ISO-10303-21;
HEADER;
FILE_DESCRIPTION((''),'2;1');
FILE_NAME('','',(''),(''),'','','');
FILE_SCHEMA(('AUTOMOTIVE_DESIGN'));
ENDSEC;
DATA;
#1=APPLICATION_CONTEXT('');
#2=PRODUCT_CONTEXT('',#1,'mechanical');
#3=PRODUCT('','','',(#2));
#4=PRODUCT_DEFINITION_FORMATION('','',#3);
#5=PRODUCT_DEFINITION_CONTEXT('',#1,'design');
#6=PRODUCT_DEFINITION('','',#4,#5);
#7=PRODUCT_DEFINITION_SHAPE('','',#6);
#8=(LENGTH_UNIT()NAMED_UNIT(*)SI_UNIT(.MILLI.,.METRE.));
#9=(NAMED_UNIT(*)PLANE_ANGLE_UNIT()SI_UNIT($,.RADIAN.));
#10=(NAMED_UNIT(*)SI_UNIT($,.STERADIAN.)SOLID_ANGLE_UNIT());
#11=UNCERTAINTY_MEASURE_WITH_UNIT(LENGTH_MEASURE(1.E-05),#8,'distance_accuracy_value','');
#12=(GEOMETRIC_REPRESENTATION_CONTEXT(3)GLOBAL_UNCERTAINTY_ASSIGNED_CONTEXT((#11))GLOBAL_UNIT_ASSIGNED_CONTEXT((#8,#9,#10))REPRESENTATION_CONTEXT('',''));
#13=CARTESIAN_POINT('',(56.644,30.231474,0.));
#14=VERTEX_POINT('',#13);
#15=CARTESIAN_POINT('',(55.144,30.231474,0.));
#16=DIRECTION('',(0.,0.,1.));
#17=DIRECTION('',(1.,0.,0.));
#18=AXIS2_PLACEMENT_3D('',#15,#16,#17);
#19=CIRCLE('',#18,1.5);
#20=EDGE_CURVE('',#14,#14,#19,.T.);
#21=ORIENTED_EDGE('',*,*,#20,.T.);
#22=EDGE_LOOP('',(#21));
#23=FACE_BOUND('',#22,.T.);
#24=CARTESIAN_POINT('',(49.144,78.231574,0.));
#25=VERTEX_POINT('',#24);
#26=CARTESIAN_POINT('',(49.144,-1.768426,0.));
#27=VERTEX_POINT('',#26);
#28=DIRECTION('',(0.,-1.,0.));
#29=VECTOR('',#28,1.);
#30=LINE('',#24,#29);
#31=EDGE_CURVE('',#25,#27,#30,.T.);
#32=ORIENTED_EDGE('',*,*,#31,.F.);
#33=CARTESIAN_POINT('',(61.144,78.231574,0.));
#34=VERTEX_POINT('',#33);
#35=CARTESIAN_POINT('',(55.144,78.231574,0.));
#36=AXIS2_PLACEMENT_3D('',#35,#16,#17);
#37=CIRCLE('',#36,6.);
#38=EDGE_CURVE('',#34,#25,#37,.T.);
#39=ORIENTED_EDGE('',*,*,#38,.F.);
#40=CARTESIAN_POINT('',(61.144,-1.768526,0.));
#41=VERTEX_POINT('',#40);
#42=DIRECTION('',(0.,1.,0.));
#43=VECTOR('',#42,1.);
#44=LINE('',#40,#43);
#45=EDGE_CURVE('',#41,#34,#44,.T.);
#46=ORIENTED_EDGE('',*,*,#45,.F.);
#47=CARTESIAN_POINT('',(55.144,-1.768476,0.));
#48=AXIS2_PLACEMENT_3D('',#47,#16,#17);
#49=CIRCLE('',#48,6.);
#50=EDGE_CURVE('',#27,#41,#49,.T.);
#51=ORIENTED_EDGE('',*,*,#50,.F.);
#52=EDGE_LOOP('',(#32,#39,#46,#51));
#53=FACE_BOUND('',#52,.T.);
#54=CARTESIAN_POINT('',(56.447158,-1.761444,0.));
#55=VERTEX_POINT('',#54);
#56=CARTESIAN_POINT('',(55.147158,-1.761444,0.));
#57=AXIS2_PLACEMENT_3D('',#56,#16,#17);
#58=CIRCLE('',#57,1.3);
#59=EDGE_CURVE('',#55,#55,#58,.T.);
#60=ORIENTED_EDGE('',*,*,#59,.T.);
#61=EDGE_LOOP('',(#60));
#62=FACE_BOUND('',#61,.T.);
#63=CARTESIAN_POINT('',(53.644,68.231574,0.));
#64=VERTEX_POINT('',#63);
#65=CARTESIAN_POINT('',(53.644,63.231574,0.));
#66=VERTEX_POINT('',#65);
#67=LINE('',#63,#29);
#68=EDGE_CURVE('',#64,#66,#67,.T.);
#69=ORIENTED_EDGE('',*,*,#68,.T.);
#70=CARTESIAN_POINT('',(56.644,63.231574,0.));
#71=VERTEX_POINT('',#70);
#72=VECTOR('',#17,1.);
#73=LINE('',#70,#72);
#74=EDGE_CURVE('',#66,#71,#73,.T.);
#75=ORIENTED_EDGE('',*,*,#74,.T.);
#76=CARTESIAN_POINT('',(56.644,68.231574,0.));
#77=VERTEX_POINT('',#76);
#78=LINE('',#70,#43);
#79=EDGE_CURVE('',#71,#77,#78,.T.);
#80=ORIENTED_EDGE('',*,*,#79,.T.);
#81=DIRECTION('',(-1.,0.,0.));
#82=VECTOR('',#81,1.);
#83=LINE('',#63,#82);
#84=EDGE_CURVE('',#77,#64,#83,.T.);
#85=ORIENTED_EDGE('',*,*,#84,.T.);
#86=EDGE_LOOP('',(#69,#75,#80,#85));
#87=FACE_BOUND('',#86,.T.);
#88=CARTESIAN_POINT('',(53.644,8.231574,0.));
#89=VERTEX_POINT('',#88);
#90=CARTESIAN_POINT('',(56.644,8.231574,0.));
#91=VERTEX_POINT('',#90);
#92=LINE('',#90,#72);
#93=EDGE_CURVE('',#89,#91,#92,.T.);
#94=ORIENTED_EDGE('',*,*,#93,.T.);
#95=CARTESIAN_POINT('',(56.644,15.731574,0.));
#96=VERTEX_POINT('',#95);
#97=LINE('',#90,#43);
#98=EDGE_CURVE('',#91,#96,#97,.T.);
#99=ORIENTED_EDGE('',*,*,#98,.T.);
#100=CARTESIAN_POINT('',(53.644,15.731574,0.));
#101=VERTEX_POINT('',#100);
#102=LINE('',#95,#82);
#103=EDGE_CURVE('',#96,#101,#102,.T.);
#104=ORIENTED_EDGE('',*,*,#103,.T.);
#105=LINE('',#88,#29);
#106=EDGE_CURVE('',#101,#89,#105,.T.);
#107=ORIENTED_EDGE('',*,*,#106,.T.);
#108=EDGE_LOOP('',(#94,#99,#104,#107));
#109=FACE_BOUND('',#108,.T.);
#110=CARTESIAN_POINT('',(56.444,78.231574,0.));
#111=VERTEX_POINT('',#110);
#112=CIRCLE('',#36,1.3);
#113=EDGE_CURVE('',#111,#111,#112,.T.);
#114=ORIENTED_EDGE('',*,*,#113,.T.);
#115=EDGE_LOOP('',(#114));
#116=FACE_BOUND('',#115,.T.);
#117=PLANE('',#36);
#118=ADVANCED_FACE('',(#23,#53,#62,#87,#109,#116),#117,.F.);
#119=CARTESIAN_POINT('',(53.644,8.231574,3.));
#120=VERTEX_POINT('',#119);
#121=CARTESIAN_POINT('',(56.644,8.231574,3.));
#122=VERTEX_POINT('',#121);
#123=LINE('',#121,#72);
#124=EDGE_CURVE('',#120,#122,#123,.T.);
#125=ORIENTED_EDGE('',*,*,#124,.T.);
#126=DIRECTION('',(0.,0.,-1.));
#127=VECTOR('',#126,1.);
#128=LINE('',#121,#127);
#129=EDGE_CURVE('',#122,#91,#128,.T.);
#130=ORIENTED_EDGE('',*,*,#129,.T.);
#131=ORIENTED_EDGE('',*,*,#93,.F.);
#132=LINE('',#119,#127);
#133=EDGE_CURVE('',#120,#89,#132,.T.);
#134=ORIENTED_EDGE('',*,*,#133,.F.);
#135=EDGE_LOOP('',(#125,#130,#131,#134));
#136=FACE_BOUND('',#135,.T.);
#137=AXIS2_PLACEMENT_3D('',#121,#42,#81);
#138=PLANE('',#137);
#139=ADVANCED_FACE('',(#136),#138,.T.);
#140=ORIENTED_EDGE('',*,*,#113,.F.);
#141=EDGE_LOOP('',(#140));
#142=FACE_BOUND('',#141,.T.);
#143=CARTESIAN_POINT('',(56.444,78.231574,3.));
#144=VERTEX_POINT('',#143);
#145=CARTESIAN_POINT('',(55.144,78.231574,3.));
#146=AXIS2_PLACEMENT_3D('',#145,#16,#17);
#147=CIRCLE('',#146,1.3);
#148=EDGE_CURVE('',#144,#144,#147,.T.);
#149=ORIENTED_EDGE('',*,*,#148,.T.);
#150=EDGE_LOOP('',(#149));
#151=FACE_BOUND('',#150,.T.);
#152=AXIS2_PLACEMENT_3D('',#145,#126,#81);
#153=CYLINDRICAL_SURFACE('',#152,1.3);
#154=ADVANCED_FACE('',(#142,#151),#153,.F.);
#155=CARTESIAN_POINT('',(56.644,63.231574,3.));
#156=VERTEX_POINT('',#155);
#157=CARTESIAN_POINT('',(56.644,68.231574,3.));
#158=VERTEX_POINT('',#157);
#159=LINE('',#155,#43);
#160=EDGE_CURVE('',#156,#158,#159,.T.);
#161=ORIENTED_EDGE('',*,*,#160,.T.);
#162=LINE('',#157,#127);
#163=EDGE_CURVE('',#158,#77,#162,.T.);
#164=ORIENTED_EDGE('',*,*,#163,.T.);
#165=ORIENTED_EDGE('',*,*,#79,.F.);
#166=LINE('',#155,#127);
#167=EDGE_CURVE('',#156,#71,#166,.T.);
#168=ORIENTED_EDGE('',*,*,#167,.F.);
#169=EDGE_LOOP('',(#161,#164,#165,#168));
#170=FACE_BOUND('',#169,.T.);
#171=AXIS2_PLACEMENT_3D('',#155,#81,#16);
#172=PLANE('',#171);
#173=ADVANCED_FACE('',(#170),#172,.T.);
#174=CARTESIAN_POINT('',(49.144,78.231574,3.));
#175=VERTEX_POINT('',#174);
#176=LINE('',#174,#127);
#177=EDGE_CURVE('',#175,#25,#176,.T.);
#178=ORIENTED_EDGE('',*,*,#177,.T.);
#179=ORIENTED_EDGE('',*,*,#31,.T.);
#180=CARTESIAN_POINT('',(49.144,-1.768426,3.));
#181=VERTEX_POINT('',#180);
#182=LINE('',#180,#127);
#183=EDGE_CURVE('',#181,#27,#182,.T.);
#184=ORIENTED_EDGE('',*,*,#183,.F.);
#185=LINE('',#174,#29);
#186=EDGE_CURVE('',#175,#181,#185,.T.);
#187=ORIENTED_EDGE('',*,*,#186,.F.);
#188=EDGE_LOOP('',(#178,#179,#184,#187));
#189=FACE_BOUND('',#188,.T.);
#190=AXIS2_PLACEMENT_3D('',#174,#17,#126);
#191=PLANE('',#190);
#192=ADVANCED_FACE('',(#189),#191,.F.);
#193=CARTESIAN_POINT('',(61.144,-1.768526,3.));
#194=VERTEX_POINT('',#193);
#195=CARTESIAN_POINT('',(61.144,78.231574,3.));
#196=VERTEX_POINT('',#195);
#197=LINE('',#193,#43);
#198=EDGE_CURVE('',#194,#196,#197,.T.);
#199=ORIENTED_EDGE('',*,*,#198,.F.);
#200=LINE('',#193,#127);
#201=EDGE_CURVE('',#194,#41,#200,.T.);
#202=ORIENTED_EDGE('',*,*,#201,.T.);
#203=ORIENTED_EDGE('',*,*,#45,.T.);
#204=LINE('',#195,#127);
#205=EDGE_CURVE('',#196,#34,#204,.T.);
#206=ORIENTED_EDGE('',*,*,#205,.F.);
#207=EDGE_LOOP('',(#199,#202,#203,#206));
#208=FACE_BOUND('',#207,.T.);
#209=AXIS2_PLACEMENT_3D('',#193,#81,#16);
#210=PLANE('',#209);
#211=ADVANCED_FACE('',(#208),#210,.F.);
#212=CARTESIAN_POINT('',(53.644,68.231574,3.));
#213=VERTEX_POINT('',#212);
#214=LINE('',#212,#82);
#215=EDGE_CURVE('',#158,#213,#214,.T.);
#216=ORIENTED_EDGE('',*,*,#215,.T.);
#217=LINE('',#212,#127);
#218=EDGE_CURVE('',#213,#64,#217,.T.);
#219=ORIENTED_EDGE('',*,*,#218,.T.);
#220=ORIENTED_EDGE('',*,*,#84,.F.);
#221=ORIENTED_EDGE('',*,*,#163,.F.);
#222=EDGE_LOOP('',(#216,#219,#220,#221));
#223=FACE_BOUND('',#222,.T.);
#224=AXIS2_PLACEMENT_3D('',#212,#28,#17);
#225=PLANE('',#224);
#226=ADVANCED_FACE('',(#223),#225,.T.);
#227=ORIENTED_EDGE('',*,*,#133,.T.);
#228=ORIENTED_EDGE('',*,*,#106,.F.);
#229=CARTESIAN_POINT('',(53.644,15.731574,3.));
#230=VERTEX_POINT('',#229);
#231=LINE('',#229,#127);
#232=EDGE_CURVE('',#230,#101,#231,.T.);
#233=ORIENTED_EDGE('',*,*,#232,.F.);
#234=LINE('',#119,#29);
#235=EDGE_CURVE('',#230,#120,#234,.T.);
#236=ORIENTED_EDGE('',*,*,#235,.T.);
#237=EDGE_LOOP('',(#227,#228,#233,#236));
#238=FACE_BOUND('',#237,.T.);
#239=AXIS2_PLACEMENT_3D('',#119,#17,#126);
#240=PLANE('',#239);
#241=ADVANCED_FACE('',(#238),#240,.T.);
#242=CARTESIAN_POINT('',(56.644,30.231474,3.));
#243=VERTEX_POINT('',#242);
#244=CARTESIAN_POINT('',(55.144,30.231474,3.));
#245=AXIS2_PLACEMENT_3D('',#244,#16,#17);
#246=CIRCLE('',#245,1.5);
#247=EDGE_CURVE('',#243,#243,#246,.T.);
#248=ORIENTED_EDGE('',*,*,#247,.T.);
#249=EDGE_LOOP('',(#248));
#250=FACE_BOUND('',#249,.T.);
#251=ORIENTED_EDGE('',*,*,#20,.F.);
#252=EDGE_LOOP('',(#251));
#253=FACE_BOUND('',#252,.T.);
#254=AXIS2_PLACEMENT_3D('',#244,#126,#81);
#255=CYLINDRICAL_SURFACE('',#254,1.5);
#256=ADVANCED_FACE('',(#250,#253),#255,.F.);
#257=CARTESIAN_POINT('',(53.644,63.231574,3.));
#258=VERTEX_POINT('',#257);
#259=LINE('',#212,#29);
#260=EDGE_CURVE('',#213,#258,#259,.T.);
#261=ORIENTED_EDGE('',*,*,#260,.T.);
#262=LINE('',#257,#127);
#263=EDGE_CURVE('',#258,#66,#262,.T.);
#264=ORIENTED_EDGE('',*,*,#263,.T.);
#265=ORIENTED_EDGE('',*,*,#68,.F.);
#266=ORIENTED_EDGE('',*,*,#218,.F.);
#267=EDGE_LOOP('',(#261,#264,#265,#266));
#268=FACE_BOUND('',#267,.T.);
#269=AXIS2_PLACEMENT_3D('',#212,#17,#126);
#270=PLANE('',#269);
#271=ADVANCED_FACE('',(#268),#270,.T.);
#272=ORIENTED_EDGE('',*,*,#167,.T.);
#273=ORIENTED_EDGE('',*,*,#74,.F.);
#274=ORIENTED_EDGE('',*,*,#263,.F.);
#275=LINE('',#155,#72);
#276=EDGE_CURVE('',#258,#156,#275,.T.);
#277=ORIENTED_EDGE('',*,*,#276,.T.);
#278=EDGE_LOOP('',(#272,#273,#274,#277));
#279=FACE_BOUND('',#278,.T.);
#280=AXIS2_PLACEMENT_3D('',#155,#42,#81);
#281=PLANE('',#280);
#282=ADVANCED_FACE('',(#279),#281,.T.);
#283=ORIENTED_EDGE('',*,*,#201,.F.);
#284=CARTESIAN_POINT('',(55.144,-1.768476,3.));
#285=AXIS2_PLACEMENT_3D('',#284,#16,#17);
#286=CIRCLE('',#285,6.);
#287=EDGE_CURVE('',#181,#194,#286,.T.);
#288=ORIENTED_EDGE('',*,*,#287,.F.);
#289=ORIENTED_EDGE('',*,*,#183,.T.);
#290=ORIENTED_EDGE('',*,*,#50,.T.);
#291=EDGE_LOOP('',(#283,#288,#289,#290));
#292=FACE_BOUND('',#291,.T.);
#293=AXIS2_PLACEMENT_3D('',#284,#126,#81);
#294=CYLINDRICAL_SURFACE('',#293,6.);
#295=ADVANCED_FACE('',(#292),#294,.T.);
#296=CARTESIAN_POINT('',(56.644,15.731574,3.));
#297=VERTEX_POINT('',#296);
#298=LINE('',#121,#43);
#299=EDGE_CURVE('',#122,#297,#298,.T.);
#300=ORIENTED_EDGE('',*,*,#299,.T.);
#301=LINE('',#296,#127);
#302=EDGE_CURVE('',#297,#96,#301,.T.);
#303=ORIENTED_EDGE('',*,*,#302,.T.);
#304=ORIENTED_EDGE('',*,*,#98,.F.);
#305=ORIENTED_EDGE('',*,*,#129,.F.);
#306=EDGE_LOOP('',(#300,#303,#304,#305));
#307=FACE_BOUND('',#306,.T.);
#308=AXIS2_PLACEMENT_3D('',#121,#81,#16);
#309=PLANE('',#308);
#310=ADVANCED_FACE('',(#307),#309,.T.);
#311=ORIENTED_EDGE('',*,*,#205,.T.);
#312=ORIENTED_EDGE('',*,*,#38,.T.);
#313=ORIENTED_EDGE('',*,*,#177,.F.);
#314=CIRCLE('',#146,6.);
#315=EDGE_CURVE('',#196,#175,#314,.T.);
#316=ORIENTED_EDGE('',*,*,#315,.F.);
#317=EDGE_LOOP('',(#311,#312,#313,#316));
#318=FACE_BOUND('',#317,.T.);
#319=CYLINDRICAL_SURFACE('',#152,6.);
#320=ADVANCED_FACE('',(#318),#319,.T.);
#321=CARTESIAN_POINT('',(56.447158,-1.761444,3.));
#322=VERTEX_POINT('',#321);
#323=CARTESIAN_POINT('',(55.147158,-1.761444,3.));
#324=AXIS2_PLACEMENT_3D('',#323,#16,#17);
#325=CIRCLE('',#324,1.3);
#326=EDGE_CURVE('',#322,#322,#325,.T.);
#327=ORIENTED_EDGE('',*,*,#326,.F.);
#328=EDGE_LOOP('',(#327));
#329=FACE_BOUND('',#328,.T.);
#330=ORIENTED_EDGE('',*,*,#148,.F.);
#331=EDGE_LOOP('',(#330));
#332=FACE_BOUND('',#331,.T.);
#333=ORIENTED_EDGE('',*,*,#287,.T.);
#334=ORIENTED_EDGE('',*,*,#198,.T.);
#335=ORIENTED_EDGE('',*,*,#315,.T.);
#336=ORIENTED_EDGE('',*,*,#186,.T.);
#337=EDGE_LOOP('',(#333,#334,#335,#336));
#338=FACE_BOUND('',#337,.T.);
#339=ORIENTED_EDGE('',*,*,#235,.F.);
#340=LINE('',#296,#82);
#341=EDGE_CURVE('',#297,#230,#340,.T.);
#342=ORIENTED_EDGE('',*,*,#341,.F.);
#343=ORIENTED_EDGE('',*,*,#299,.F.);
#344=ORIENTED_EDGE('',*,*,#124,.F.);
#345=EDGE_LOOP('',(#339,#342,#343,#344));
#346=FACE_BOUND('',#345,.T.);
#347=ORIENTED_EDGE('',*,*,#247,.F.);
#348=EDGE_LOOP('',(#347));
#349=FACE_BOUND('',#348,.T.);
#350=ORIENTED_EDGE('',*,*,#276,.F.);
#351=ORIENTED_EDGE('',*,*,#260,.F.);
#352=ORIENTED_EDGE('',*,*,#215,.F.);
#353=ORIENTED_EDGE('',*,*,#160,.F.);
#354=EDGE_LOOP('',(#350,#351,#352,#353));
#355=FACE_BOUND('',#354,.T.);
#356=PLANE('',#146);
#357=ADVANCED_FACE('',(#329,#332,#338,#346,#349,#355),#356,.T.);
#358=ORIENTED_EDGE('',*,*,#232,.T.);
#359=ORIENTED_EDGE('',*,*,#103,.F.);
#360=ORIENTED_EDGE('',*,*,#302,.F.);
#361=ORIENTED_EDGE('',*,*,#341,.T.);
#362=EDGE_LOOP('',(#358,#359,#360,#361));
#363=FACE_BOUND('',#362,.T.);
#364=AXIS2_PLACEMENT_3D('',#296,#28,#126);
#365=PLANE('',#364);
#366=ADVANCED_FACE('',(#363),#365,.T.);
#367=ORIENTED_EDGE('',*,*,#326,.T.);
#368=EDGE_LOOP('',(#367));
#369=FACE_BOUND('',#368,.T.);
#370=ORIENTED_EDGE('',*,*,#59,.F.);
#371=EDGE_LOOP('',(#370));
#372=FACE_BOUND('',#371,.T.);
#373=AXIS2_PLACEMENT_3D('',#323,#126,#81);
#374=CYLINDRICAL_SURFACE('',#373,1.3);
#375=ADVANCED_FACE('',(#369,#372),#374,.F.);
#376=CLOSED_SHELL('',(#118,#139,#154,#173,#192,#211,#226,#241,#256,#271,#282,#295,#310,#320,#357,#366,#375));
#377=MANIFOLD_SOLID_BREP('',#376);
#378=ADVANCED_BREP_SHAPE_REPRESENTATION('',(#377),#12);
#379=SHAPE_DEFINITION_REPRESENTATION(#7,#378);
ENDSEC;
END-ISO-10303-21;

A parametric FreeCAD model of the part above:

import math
import FreeCAD as App
import Part
import Sketcher
Q = App.Units.Quantity


def add_polygon(sketch, points):
    """Adds a closed chain of lines whose ends are joined by coincident constraints."""
    first, n = sketch.GeometryCount, len(points)
    for a, b in zip(points, points[1:] + points[:1]):
        sketch.addGeometry(Part.LineSegment(App.Vector(*a, 0), App.Vector(*b, 0)), False)
    for i in range(n):
        sketch.addConstraint(Sketcher.Constraint("Coincident", first + i, 2, first + (i + 1) % n, 1))

doc = App.newDocument("Part")
body = doc.addObject("PartDesign::Body", "Body")

# Sketch on XY plane
sketch1 = doc.addObject("Sketcher::SketchObject", "Sketch")
body.addObject(sketch1)
sketch1.AttachmentSupport = (doc.XY_Plane, [""])
sketch1.MapMode = "FlatFace"
sketch1.addGeometry(Part.LineSegment(App.Vector(49.1, 78.2, 0), App.Vector(49.1, -1.8, 0)), False)  # 0
sketch1.addGeometry(Part.ArcOfCircle(Part.Circle(App.Vector(55.1, -1.8, 0), App.Vector(0, 0, 1), 6), math.radians(180), math.radians(360)), False)  # 1
sketch1.addGeometry(Part.LineSegment(App.Vector(61.1, -1.8, 0), App.Vector(61.1, 78.2, 0)), False)  # 2
sketch1.addGeometry(Part.ArcOfCircle(Part.Circle(App.Vector(55.1, 78.2, 0), App.Vector(0, 0, 1), 6), math.radians(0), math.radians(180)), False)  # 3
sketch1.addGeometry(Part.Circle(App.Vector(55.1, -1.8, 0), App.Vector(0, 0, 1), 1.3), False)  # 4
add_polygon(sketch1, [(56.6, 8.2), (53.6, 8.2), (53.6, 15.7), (56.6, 15.7)])  # lines 5-8
sketch1.addGeometry(Part.Circle(App.Vector(55.1, 30.2, 0), App.Vector(0, 0, 1), 1.5), False)  # 9
sketch1.addGeometry(Part.Circle(App.Vector(55.1, 78.2, 0), App.Vector(0, 0, 1), 1.3), False)  # 10
add_polygon(sketch1, [(56.6, 63.2), (53.6, 63.2), (53.6, 68.2), (56.6, 68.2)])  # lines 11-14
sketch1.addConstraint(Sketcher.Constraint("Coincident", 0, 2, 1, 1))
sketch1.addConstraint(Sketcher.Constraint("Coincident", 1, 2, 2, 1))
sketch1.addConstraint(Sketcher.Constraint("Tangent", 2, 2, 3, 1))
sketch1.addConstraint(Sketcher.Constraint("Tangent", 3, 2, 0, 1))
sketch1.addConstraint(Sketcher.Constraint("Vertical", 0))
sketch1.addConstraint(Sketcher.Constraint("Vertical", 2))
sketch1.addConstraint(Sketcher.Constraint("Horizontal", 5))
sketch1.addConstraint(Sketcher.Constraint("Vertical", 6))
sketch1.addConstraint(Sketcher.Constraint("Horizontal", 7))
sketch1.addConstraint(Sketcher.Constraint("Vertical", 8))
sketch1.addConstraint(Sketcher.Constraint("Horizontal", 11))
sketch1.addConstraint(Sketcher.Constraint("Vertical", 12))
sketch1.addConstraint(Sketcher.Constraint("Horizontal", 13))
sketch1.addConstraint(Sketcher.Constraint("Vertical", 14))
sketch1.addConstraint(Sketcher.Constraint("Coincident", 10, 3, 3, 3))
sketch1.addConstraint(Sketcher.Constraint("Equal", 4, 10))
sketch1.addConstraint(Sketcher.Constraint("Vertical", 3, 3, 9, 3))
sketch1.addConstraint(Sketcher.Constraint("Vertical", 6, 2, 11, 2))
sketch1.addConstraint(Sketcher.Constraint("Vertical", 8, 2, 13, 2))
sketch1.addConstraint(Sketcher.Constraint("Diameter", 9, Q("3 mm")))
sketch1.addConstraint(Sketcher.Constraint("Radius", 1, Q("6 mm")))
sketch1.addConstraint(Sketcher.Constraint("Diameter", 4, Q("2.6 mm")))
sketch1.addConstraint(Sketcher.Constraint("DistanceX", 5, 2, 5, 1, Q("3 mm")))
sketch1.addConstraint(Sketcher.Constraint("DistanceY", 0, 2, 0, 1, Q("80 mm")))
sketch1.addConstraint(Sketcher.Constraint("DistanceY", 12, 1, 12, 2, Q("5 mm")))
sketch1.addConstraint(Sketcher.Constraint("DistanceY", 6, 1, 6, 2, Q("7.5 mm")))
sketch1.addConstraint(Sketcher.Constraint("DistanceY", 1, 2, 9, 3, Q("32 mm")))
sketch1.addConstraint(Sketcher.Constraint("DistanceY", 0, 2, 5, 2, Q("10 mm")))
sketch1.addConstraint(Sketcher.Constraint("DistanceY", 11, 2, 3, 3, Q("15 mm")))
sketch1.addConstraint(Sketcher.Constraint("DistanceX", 5, 2, 1, 3, Q("1.5 mm")))
sketch1.addConstraint(Sketcher.Constraint("DistanceY", 2, 1, 2, 2, Q("80.0001 mm")))
sketch1.addConstraint(Sketcher.Constraint("DistanceX", -1, 1, 1, 3, Q("55.144 mm")))
sketch1.addConstraint(Sketcher.Constraint("DistanceX", -1, 1, 4, 3, Q("55.147158 mm")))
sketch1.addConstraint(Sketcher.Constraint("DistanceY", 1, 3, 3, 3, Q("80.00005 mm")))
sketch1.addConstraint(Sketcher.Constraint("DistanceY", 1, 3, 4, 3, Q("0.007032 mm")))
sketch1.addConstraint(Sketcher.Constraint("DistanceY", 1, 3, -1, 1, Q("1.768476 mm")))
pad1 = doc.addObject("PartDesign::Pad", "Pad")
body.addObject(pad1)
pad1.Profile = sketch1
pad1.Length = 3

doc.recompute()
